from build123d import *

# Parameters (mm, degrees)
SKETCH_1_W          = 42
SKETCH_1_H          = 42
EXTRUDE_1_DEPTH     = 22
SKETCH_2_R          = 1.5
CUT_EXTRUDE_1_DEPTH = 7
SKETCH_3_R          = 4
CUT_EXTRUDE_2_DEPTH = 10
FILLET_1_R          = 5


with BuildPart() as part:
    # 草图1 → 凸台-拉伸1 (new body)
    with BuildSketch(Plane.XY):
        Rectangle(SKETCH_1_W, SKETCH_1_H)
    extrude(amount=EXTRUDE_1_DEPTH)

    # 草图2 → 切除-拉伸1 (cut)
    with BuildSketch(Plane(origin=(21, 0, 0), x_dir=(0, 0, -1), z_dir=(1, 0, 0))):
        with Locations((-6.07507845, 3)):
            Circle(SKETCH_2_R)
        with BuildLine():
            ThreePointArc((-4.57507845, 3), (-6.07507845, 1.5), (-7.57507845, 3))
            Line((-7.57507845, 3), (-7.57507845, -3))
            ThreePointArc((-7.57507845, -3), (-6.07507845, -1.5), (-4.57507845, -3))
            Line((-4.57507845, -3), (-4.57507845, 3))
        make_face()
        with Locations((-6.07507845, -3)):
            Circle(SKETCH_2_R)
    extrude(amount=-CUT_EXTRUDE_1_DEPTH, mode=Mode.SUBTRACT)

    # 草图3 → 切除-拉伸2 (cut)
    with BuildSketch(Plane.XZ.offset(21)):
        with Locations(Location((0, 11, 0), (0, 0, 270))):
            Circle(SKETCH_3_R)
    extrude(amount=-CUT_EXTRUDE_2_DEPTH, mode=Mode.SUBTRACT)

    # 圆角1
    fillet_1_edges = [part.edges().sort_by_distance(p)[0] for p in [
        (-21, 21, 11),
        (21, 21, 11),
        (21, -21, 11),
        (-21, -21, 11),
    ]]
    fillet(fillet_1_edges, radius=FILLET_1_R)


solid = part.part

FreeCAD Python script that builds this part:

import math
import FreeCAD as App
import Part
import Sketcher


def edges_at(feature, points):
    """Names of the edges that pass closest to the given points."""
    edges = feature.Shape.Edges
    near = lambda p: min(range(len(edges)), key=lambda i: edges[i].distToShape(Part.Vertex(*p))[0])
    return sorted({f"Edge{near(p) + 1}" for p in points})


def add_polygon(sketch, points):
    """Adds a closed chain of lines whose ends are joined by coincident constraints."""
    first, n = sketch.GeometryCount, len(points)
    for a, b in zip(points, points[1:] + points[:1]):
        sketch.addGeometry(Part.LineSegment(App.Vector(*a, 0), App.Vector(*b, 0)), False)
    for i in range(n):
        sketch.addConstraint(Sketcher.Constraint("Coincident", first + i, 2, first + (i + 1) % n, 1))

doc = App.newDocument("Part")
body = doc.addObject("PartDesign::Body", "Body")

# Sketch on XY plane
sketch1 = doc.addObject("Sketcher::SketchObject", "Sketch")
body.addObject(sketch1)
sketch1.AttachmentSupport = (doc.XY_Plane, [""])
sketch1.MapMode = "FlatFace"
add_polygon(sketch1, [(-21, 21), (-21, -21), (21, -21), (21, 21)])  # lines 0-3
sketch1.addConstraint([
    Sketcher.Constraint("Vertical", 0),
    Sketcher.Constraint("Horizontal", 1),
    Sketcher.Constraint("Vertical", 2),
    Sketcher.Constraint("Horizontal", 3),
    Sketcher.Constraint("Symmetric", 0, 2, 2, 2, -1, 1),
    Sketcher.Constraint("Equal", 3, 0),
    Sketcher.Constraint("DistanceX", 1, 1, 1, 2, 42.0),
])
pad1 = doc.addObject("PartDesign::Pad", "Pad")
body.addObject(pad1)
pad1.Profile = sketch1
pad1.Length = 22

# Sketch on YZ plane
sketch2 = doc.addObject("Sketcher::SketchObject", "Sketch001")
body.addObject(sketch2)
sketch2.AttachmentSupport = (doc.YZ_Plane, [""])
sketch2.MapMode = "FlatFace"
sketch2.AttachmentOffset = App.Placement(App.Vector(0, 0, 21), App.Rotation())
sketch2.addGeometry([
    Part.ArcOfCircle(Part.Circle(App.Vector(3, 6.075078, 0), App.Vector(0, 0, 1), 1.5), math.radians(-90), math.radians(90)),
    Part.LineSegment(App.Vector(3, 7.575078, 0), App.Vector(-3, 7.575078, 0)),
    Part.ArcOfCircle(Part.Circle(App.Vector(-3, 6.075078, 0), App.Vector(0, 0, 1), 1.5), math.radians(90), math.radians(270)),
    Part.LineSegment(App.Vector(-3, 4.575078, 0), App.Vector(3, 4.575078, 0)),
], False)
sketch2.addConstraint([
    Sketcher.Constraint("Tangent", 0, 2, 1, 1),
    Sketcher.Constraint("Tangent", 1, 2, 2, 1),
    Sketcher.Constraint("Tangent", 2, 2, 3, 1),
    Sketcher.Constraint("Tangent", 3, 2, 0, 1),
    Sketcher.Constraint("Horizontal", 1),
    Sketcher.Constraint("Horizontal", 3),
    Sketcher.Constraint("Radius", 0, 1.5),
    Sketcher.Constraint("DistanceX", 1, 2, 1, 1, 6.0),
    Sketcher.Constraint("DistanceX", -1, 1, 0, 3, 3.0),
    Sketcher.Constraint("DistanceY", -1, 1, 0, 3, 6.075078),
])
pocket1 = doc.addObject("PartDesign::Pocket", "Pocket")
body.addObject(pocket1)
pocket1.Profile = sketch2
pocket1.Length = 7

# Sketch on XZ plane
sketch3 = doc.addObject("Sketcher::SketchObject", "Sketch002")
body.addObject(sketch3)
sketch3.AttachmentSupport = (doc.XZ_Plane, [""])
sketch3.MapMode = "FlatFace"
sketch3.AttachmentOffset = App.Placement(App.Vector(0, 0, 21), App.Rotation())
sketch3.addGeometry(Part.Circle(App.Vector(0, 11, 0), App.Vector(0, 0, 1), 4), False)
sketch3.addConstraint([
    Sketcher.Constraint("PointOnObject", 0, 3, -2),
    Sketcher.Constraint("Diameter", 0, 8.0),
    Sketcher.Constraint("DistanceY", -1, 1, 0, 3, 11.0),
])
pocket2 = doc.addObject("PartDesign::Pocket", "Pocket001")
body.addObject(pocket2)
pocket2.Profile = sketch3
pocket2.Length = 10
doc.recompute()

fillet = doc.addObject("PartDesign::Fillet", "Fillet")
body.addObject(fillet)
fillet.Base = (pocket2, edges_at(pocket2, [
    (-21, 21, 11),
    (21, 21, 11),
    (21, -21, 11),
    (-21, -21, 11),
]))
fillet.Radius = 5

doc.recompute()
